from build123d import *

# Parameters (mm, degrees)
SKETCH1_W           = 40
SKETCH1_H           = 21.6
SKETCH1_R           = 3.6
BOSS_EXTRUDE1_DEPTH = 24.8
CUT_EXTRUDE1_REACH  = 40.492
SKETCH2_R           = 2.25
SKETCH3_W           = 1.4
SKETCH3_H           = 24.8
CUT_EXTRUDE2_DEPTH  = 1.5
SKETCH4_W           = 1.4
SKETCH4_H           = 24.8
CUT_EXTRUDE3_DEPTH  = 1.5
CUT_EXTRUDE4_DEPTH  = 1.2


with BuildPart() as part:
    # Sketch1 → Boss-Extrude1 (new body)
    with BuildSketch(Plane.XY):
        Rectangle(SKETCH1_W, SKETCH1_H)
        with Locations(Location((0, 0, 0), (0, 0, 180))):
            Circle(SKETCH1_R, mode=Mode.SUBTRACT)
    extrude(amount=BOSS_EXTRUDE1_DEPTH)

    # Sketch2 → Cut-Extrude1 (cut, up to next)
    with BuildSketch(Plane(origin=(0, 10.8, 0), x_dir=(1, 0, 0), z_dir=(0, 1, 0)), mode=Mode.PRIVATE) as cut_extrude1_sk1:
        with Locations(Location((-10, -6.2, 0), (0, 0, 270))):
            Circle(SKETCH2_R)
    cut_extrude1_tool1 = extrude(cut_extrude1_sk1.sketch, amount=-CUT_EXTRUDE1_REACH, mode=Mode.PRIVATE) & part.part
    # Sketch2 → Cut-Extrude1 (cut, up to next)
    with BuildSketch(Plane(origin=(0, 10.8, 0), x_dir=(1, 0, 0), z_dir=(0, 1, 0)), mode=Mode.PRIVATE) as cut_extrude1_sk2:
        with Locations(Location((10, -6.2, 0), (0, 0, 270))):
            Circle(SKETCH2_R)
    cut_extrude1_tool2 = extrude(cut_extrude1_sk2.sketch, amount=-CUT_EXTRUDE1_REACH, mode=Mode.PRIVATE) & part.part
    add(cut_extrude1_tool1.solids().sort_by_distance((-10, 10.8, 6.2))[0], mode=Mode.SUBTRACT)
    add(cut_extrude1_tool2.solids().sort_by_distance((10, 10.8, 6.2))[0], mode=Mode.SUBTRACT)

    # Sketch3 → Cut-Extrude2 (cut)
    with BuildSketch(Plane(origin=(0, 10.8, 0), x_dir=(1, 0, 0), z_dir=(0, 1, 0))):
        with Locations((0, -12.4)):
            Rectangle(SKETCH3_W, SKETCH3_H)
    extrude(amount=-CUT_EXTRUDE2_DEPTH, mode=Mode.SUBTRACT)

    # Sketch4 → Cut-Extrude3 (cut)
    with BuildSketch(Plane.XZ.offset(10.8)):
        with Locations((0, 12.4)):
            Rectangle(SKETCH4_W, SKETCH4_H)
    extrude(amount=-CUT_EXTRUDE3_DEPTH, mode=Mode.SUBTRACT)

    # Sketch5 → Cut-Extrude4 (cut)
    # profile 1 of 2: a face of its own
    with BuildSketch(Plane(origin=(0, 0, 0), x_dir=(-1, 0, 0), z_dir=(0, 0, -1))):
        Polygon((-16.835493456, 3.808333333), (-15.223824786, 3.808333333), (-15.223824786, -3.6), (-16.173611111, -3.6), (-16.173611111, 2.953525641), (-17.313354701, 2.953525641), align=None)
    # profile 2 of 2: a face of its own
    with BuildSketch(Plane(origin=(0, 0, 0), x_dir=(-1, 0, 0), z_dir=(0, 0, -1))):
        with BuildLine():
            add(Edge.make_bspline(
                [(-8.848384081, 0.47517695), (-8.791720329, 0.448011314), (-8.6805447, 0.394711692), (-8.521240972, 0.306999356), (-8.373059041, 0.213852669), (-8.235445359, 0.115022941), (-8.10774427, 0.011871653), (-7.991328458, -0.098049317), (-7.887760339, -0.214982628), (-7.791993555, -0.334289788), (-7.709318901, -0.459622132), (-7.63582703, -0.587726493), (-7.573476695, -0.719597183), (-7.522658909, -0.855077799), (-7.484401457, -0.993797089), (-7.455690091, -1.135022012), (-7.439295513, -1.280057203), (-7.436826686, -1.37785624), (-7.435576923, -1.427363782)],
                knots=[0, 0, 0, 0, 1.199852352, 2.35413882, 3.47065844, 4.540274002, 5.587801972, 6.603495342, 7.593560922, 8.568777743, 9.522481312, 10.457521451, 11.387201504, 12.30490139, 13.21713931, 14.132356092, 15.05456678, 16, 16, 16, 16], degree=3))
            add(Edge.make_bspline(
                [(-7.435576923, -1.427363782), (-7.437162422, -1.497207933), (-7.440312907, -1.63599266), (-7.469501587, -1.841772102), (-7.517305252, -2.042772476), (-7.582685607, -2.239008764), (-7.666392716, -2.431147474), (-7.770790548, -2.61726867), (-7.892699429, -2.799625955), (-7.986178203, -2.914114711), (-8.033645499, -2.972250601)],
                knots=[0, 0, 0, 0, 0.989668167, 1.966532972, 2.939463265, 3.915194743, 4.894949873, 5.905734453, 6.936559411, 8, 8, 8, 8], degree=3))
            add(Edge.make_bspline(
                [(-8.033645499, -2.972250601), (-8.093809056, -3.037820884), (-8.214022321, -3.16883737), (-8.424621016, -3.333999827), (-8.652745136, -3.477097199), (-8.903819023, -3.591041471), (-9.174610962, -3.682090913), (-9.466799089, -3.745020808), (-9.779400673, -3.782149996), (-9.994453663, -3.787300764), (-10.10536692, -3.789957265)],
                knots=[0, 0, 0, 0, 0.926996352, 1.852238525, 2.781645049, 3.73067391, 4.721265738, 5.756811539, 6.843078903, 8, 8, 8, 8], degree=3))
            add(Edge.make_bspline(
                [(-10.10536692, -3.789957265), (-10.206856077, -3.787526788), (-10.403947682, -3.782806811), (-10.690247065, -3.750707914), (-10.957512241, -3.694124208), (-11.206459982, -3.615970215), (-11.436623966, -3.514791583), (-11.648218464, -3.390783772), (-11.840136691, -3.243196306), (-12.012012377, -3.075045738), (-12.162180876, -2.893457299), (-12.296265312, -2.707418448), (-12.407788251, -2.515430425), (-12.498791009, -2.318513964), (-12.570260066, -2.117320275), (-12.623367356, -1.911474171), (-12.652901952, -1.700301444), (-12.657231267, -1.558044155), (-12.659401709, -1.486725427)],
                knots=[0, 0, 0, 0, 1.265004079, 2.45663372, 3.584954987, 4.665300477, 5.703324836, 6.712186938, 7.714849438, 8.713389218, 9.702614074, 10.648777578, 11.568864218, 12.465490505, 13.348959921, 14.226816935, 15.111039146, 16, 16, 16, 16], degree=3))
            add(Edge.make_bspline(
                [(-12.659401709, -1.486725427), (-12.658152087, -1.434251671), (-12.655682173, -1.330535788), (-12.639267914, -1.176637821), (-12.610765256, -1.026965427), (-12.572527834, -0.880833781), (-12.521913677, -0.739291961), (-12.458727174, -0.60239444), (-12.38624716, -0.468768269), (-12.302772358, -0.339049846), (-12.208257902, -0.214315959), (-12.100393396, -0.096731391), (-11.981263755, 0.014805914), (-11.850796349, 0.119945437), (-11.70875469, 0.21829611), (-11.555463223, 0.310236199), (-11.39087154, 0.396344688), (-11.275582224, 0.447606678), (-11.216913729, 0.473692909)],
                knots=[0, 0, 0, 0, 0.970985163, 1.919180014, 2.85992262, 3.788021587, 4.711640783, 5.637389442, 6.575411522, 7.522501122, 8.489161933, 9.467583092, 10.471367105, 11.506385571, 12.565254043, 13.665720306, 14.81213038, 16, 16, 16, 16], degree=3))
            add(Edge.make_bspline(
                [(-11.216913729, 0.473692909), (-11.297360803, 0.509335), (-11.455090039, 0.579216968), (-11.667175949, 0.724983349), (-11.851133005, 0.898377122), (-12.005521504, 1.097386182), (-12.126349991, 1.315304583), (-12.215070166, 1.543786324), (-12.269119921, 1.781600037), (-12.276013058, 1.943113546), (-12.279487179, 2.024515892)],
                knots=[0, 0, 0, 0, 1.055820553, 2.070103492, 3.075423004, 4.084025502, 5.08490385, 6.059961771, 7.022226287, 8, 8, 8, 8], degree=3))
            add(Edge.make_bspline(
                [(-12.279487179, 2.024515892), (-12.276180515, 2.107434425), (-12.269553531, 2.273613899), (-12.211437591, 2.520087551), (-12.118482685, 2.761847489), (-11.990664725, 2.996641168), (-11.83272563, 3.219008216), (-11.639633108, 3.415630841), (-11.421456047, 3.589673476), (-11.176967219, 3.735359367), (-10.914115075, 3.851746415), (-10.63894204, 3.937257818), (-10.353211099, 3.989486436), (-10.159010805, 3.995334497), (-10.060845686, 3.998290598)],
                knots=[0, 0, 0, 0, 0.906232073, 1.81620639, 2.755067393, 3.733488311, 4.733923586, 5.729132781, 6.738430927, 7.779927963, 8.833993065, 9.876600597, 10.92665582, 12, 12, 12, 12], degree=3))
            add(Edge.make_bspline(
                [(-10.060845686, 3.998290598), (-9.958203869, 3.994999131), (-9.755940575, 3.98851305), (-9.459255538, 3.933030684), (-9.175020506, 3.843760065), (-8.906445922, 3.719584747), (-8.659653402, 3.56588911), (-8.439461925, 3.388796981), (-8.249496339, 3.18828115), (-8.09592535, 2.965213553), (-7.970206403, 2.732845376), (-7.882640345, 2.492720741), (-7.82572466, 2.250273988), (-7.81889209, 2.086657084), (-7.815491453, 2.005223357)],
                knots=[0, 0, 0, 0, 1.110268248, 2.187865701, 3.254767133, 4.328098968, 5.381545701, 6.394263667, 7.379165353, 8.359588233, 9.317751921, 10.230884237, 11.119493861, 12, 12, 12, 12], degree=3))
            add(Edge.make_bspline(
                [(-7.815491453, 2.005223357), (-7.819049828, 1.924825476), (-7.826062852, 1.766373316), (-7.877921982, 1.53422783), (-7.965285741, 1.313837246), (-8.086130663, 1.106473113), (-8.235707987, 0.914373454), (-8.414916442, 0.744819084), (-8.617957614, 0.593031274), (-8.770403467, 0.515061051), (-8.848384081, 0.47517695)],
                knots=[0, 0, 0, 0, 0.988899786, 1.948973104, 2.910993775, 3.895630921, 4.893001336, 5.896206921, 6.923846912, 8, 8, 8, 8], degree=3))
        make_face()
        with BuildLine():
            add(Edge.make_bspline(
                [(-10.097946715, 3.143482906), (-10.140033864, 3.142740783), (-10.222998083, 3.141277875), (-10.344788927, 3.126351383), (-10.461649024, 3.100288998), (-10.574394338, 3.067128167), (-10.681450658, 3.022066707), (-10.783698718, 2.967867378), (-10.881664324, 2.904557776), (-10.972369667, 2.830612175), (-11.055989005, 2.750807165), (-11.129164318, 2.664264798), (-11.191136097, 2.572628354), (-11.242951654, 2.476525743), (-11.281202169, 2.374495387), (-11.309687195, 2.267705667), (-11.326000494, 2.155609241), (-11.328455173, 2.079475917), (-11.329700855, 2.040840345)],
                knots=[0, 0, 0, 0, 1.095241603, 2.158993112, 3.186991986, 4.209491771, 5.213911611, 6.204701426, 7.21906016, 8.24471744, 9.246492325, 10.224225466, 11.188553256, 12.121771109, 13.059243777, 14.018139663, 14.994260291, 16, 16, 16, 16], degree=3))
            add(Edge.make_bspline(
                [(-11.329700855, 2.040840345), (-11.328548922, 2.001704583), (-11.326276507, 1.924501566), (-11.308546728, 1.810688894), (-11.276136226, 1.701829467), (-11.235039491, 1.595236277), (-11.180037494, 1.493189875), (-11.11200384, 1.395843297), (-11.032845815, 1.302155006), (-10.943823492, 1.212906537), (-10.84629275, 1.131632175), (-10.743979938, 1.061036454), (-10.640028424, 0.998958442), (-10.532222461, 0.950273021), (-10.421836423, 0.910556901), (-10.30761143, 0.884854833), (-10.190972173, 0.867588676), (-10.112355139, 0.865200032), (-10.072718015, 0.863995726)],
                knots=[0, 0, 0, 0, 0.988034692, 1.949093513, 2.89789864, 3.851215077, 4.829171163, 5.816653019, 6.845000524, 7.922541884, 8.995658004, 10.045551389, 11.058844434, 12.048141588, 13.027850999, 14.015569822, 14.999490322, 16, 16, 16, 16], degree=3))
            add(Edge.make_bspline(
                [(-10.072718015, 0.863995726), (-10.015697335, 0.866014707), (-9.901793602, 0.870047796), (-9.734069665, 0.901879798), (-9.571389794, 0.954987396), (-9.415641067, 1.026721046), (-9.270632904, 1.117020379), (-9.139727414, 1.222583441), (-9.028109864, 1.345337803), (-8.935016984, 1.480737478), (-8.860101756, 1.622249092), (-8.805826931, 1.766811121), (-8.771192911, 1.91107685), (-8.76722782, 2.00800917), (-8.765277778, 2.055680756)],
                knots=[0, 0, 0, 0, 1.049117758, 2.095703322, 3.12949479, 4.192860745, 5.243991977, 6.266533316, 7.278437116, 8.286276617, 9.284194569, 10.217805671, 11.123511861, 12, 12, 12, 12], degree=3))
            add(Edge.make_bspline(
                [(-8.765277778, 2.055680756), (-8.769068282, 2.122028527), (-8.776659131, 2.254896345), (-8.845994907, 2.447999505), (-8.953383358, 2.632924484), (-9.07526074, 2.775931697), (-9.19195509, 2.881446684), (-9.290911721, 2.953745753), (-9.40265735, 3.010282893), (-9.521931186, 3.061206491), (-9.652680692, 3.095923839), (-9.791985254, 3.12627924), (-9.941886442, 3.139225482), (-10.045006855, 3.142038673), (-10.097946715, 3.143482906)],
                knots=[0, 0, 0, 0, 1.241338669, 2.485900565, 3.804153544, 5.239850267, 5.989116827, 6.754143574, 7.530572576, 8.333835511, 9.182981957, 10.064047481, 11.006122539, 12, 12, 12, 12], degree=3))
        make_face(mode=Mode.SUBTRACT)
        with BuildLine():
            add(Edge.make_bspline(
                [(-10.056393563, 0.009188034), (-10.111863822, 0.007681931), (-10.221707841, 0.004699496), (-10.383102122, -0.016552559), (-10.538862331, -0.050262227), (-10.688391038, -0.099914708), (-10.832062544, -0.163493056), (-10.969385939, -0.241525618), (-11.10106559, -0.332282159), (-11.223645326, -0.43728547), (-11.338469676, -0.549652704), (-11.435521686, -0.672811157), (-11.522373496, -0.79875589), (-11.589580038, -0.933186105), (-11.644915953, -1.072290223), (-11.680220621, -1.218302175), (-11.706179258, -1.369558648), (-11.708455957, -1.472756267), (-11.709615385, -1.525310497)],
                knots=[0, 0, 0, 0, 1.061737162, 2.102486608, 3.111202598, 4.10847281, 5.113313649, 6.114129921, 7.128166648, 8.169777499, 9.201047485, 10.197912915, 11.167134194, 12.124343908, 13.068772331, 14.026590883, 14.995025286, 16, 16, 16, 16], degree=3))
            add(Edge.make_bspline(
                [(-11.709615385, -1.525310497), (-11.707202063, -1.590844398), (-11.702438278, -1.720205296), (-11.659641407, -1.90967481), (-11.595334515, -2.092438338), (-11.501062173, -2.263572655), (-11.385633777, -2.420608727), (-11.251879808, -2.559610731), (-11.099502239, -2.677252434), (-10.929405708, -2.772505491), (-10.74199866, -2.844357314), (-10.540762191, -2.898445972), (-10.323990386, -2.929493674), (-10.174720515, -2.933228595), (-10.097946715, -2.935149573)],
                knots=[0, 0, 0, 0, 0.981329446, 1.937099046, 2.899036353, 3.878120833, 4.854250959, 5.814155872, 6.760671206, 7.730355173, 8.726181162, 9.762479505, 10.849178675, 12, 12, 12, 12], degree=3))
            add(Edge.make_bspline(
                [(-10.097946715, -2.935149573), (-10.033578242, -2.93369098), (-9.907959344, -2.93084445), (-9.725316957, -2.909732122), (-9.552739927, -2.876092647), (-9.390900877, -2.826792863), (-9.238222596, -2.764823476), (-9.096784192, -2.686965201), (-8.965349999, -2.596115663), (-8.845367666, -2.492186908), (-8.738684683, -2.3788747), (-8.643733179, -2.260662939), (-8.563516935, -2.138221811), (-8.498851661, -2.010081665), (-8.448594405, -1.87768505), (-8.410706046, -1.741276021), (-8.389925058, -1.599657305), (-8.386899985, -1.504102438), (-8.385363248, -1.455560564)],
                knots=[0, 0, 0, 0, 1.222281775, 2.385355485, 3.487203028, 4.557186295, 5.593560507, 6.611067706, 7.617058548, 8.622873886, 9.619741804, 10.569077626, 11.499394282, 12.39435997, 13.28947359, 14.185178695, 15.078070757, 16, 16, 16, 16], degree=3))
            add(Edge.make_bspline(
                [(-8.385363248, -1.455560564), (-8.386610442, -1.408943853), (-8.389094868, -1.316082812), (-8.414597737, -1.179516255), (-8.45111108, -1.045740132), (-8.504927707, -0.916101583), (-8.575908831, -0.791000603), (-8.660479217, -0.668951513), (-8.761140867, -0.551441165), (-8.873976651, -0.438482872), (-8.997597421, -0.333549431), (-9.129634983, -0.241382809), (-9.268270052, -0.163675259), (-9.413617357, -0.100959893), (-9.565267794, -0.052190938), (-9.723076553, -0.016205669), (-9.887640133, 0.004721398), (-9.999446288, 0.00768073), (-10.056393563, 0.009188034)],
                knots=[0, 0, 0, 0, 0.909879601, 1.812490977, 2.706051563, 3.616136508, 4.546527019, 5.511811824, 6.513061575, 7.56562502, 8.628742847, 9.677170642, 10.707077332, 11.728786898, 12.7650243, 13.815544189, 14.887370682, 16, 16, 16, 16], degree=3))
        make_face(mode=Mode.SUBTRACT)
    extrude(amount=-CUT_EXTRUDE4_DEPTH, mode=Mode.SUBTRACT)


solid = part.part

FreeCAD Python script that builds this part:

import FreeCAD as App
import Part
import Sketcher

V = App.Vector
Q = App.Units.Quantity

doc = App.newDocument("Part")
body = doc.addObject("PartDesign::Body", "Body")

# Sketch on XY plane
sketch1 = doc.addObject("Sketcher::SketchObject", "Sketch")
body.addObject(sketch1)
sketch1.AttachmentSupport = (doc.XY_Plane, [""])
sketch1.MapMode = "FlatFace"
sketch1.addGeometry(Part.LineSegment(V(-20, 10.8, 0), V(-20, -10.8, 0)), False)
sketch1.addGeometry(Part.LineSegment(V(-20, -10.8, 0), V(20, -10.8, 0)), False)
sketch1.addGeometry(Part.LineSegment(V(20, -10.8, 0), V(20, 10.8, 0)), False)
sketch1.addGeometry(Part.LineSegment(V(20, 10.8, 0), V(-20, 10.8, 0)), False)
sketch1.addGeometry(Part.Circle(V(0, 0, 0), V(0, 0, 1), 3.6), False)
sketch1.addConstraint(Sketcher.Constraint("Coincident", 0, 2, 1, 1))
sketch1.addConstraint(Sketcher.Constraint("Coincident", 1, 2, 2, 1))
sketch1.addConstraint(Sketcher.Constraint("Coincident", 2, 2, 3, 1))
sketch1.addConstraint(Sketcher.Constraint("Coincident", 3, 2, 0, 1))
sketch1.addConstraint(Sketcher.Constraint("Vertical", 0))
sketch1.addConstraint(Sketcher.Constraint("Horizontal", 1))
sketch1.addConstraint(Sketcher.Constraint("Vertical", 2))
sketch1.addConstraint(Sketcher.Constraint("Horizontal", 3))
sketch1.addConstraint(Sketcher.Constraint("Coincident", 4, 3, -1, 1))
sketch1.addConstraint(Sketcher.Constraint("Symmetric", 0, 2, 2, 2, -1, 1))
sketch1.addConstraint(Sketcher.Constraint("Diameter", 4, Q("7.2 mm")))
sketch1.addConstraint(Sketcher.Constraint("DistanceX", 1, 1, 1, 2, Q("40 mm")))
sketch1.addConstraint(Sketcher.Constraint("DistanceY", 0, 2, 0, 1, Q("21.6 mm")))
pad1 = doc.addObject("PartDesign::Pad", "Pad")
body.addObject(pad1)
pad1.Profile = sketch1
pad1.Length = 24.8

# Sketch on XZ plane
sketch2 = doc.addObject("Sketcher::SketchObject", "Sketch001")
body.addObject(sketch2)
sketch2.AttachmentSupport = (doc.XZ_Plane, [""])
sketch2.MapMode = "FlatFace"
sketch2.AttachmentOffset = App.Placement(V(0, 0, -10.8), App.Rotation())
sketch2.addGeometry(Part.Circle(V(-10, 6.2, 0), V(0, 0, 1), 2.2), False)
sketch2.addConstraint(Sketcher.Constraint("Diameter", 0, Q("4.5 mm")))
sketch2.addConstraint(Sketcher.Constraint("DistanceX", 0, 3, -1, 1, Q("10 mm")))
sketch2.addConstraint(Sketcher.Constraint("DistanceY", -1, 1, 0, 3, Q("6.2 mm")))
pocket1 = doc.addObject("PartDesign::Pocket", "Pocket")
body.addObject(pocket1)
pocket1.Profile = sketch2
pocket1.Type = "UpToFirst"
pocket1.Reversed = True

# Sketch on XZ plane
sketch3 = doc.addObject("Sketcher::SketchObject", "Sketch002")
body.addObject(sketch3)
sketch3.AttachmentSupport = (doc.XZ_Plane, [""])
sketch3.MapMode = "FlatFace"
sketch3.AttachmentOffset = App.Placement(V(0, 0, -10.8), App.Rotation())
sketch3.addGeometry(Part.Circle(V(10, 6.2, 0), V(0, 0, 1), 2.2), False)
sketch3.addConstraint(Sketcher.Constraint("Diameter", 0, Q("4.5 mm")))
sketch3.addConstraint(Sketcher.Constraint("DistanceX", -1, 1, 0, 3, Q("10 mm")))
sketch3.addConstraint(Sketcher.Constraint("DistanceY", -1, 1, 0, 3, Q("6.2 mm")))
pocket2 = doc.addObject("PartDesign::Pocket", "Pocket001")
body.addObject(pocket2)
pocket2.Profile = sketch3
pocket2.Type = "UpToFirst"
pocket2.Reversed = True

# Sketch on XZ plane
sketch4 = doc.addObject("Sketcher::SketchObject", "Sketch003")
body.addObject(sketch4)
sketch4.AttachmentSupport = (doc.XZ_Plane, [""])
sketch4.MapMode = "FlatFace"
sketch4.AttachmentOffset = App.Placement(V(0, 0, -10.8), App.Rotation())
sketch4.addGeometry(Part.LineSegment(V(-0.7, 0, 0), V(-0.7, 24.8, 0)), False)
sketch4.addGeometry(Part.LineSegment(V(-0.7, 24.8, 0), V(0.7, 24.8, 0)), False)
sketch4.addGeometry(Part.LineSegment(V(0.7, 24.8, 0), V(0.7, 0, 0)), False)
sketch4.addGeometry(Part.LineSegment(V(0.7, 0, 0), V(-0.7, 0, 0)), False)
sketch4.addConstraint(Sketcher.Constraint("Coincident", 0, 2, 1, 1))
sketch4.addConstraint(Sketcher.Constraint("Coincident", 1, 2, 2, 1))
sketch4.addConstraint(Sketcher.Constraint("Coincident", 2, 2, 3, 1))
sketch4.addConstraint(Sketcher.Constraint("Coincident", 3, 2, 0, 1))
sketch4.addConstraint(Sketcher.Constraint("Vertical", 0))
sketch4.addConstraint(Sketcher.Constraint("Horizontal", 1))
sketch4.addConstraint(Sketcher.Constraint("Vertical", 2))
sketch4.addConstraint(Sketcher.Constraint("Horizontal", 3))
sketch4.addConstraint(Sketcher.Constraint("Symmetric", 2, 2, 3, 2, -1, 1))
sketch4.addConstraint(Sketcher.Constraint("DistanceX", 1, 1, 1, 2, Q("1.4 mm")))
sketch4.addConstraint(Sketcher.Constraint("DistanceY", 0, 1, 0, 2, Q("24.8 mm")))
pocket3 = doc.addObject("PartDesign::Pocket", "Pocket002")
body.addObject(pocket3)
pocket3.Profile = sketch4
pocket3.Length = 1.5
pocket3.Reversed = True

# Sketch on XZ plane
sketch5 = doc.addObject("Sketcher::SketchObject", "Sketch004")
body.addObject(sketch5)
sketch5.AttachmentSupport = (doc.XZ_Plane, [""])
sketch5.MapMode = "FlatFace"
sketch5.AttachmentOffset = App.Placement(V(0, 0, 10.8), App.Rotation())
sketch5.addGeometry(Part.LineSegment(V(-0.7, 24.8, 0), V(-0.7, 0, 0)), False)
sketch5.addGeometry(Part.LineSegment(V(-0.7, 0, 0), V(0.7, 0, 0)), False)
sketch5.addGeometry(Part.LineSegment(V(0.7, 0, 0), V(0.7, 24.8, 0)), False)
sketch5.addGeometry(Part.LineSegment(V(0.7, 24.8, 0), V(-0.7, 24.8, 0)), False)
sketch5.addConstraint(Sketcher.Constraint("Coincident", 0, 2, 1, 1))
sketch5.addConstraint(Sketcher.Constraint("Coincident", 1, 2, 2, 1))
sketch5.addConstraint(Sketcher.Constraint("Coincident", 2, 2, 3, 1))
sketch5.addConstraint(Sketcher.Constraint("Coincident", 3, 2, 0, 1))
sketch5.addConstraint(Sketcher.Constraint("Vertical", 0))
sketch5.addConstraint(Sketcher.Constraint("Horizontal", 1))
sketch5.addConstraint(Sketcher.Constraint("Vertical", 2))
sketch5.addConstraint(Sketcher.Constraint("Horizontal", 3))
sketch5.addConstraint(Sketcher.Constraint("Symmetric", 0, 2, 1, 2, -1, 1))
sketch5.addConstraint(Sketcher.Constraint("DistanceX", 1, 1, 1, 2, Q("1.4 mm")))
sketch5.addConstraint(Sketcher.Constraint("DistanceY", 0, 2, 0, 1, Q("24.8 mm")))
pocket4 = doc.addObject("PartDesign::Pocket", "Pocket003")
body.addObject(pocket4)
pocket4.Profile = sketch5
pocket4.Length = 1.5

# Sketch on XY plane
sketch6 = doc.addObject("Sketcher::SketchObject", "Sketch005")
body.addObject(sketch6)
sketch6.AttachmentSupport = (doc.XY_Plane, [""])
sketch6.MapMode = "FlatFace"
sketch6.addGeometry(Part.LineSegment(V(15.223825, 3.808333, 0), V(16.835493, 3.808333, 0)), False)
sketch6.addGeometry(Part.LineSegment(V(16.835493, 3.808333, 0), V(17.313355, 2.953526, 0)), False)
sketch6.addGeometry(Part.LineSegment(V(17.313355, 2.953526, 0), V(16.173611, 2.953526, 0)), False)
sketch6.addGeometry(Part.LineSegment(V(16.173611, 2.953526, 0), V(16.173611, -3.6, 0)), False)
sketch6.addGeometry(Part.LineSegment(V(16.173611, -3.6, 0), V(15.223825, -3.6, 0)), False)
sketch6.addGeometry(Part.LineSegment(V(15.223825, -3.6, 0), V(15.223825, 3.808333, 0)), False)
sketch6.addGeometry(Part.BSplineCurve([V(8.848384, 0.475177, 0), V(8.79172, 0.448011, 0), V(8.680545, 0.394712, 0), V(8.521241, 0.306999, 0), V(8.373059, 0.213853, 0), V(8.235445, 0.115023, 0), V(8.107744, 0.011872, 0), V(7.991328, -0.098049, 0), V(7.88776, -0.214983, 0), V(7.791994, -0.33429, 0), V(7.709319, -0.459622, 0), V(7.635827, -0.587726, 0), V(7.573477, -0.719597, 0), V(7.522659, -0.855078, 0), V(7.484401, -0.993797, 0), V(7.45569, -1.135022, 0), V(7.439296, -1.280057, 0), V(7.436827, -1.377856, 0), V(7.435577, -1.427364, 0)], [4, 1, 1, 1, 1, 1, 1, 1, 1, 1, 1, 1, 1, 1, 1, 1, 4], [0, 1.199852352, 2.35413882, 3.47065844, 4.540274002, 5.587801972, 6.603495342, 7.593560922, 8.568777743, 9.522481312, 10.457521451, 11.387201504, 12.30490139, 13.21713931, 14.132356092, 15.05456678, 16], False, 3, [1, 1, 1, 1, 1, 1, 1, 1, 1, 1, 1, 1, 1, 1, 1, 1, 1, 1, 1], False), False)
sketch6.addGeometry(Part.BSplineCurve([V(7.815491, 2.005223, 0), V(7.81905, 1.924825, 0), V(7.826063, 1.766373, 0), V(7.877922, 1.534228, 0), V(7.965286, 1.313837, 0), V(8.086131, 1.106473, 0), V(8.235708, 0.914373, 0), V(8.414916, 0.744819, 0), V(8.617958, 0.593031, 0), V(8.770403, 0.515061, 0), V(8.848384, 0.475177, 0)], [4, 1, 1, 1, 1, 1, 1, 1, 4], [0, 0.988899786, 1.948973104, 2.910993775, 3.895630921, 4.893001336, 5.896206921, 6.923846912, 8], False, 3, [1, 1, 1, 1, 1, 1, 1, 1, 1, 1, 1], False), False)
sketch6.addGeometry(Part.BSplineCurve([V(10.060846, 3.998291, 0), V(9.958204, 3.994999, 0), V(9.755941, 3.988513, 0), V(9.459256, 3.933031, 0), V(9.175021, 3.84376, 0), V(8.906446, 3.719585, 0), V(8.659653, 3.565889, 0), V(8.439462, 3.388797, 0), V(8.249496, 3.188281, 0), V(8.095925, 2.965214, 0), V(7.970206, 2.732845, 0), V(7.88264, 2.492721, 0), V(7.825725, 2.250274, 0), V(7.818892, 2.086657, 0), V(7.815491, 2.005223, 0)], [4, 1, 1, 1, 1, 1, 1, 1, 1, 1, 1, 1, 4], [0, 1.110268248, 2.187865701, 3.254767133, 4.328098968, 5.381545701, 6.394263667, 7.379165353, 8.359588233, 9.317751921, 10.230884237, 11.119493861, 12], False, 3, [1, 1, 1, 1, 1, 1, 1, 1, 1, 1, 1, 1, 1, 1, 1], False), False)
sketch6.addGeometry(Part.BSplineCurve([V(12.279487, 2.024516, 0), V(12.276181, 2.107434, 0), V(12.269554, 2.273614, 0), V(12.211438, 2.520088, 0), V(12.118483, 2.761847, 0), V(11.990665, 2.996641, 0), V(11.832726, 3.219008, 0), V(11.639633, 3.415631, 0), V(11.421456, 3.589673, 0), V(11.176967, 3.735359, 0), V(10.914115, 3.851746, 0), V(10.638942, 3.937258, 0), V(10.353211, 3.989486, 0), V(10.159011, 3.995334, 0), V(10.060846, 3.998291, 0)], [4, 1, 1, 1, 1, 1, 1, 1, 1, 1, 1, 1, 4], [0, 0.906232073, 1.81620639, 2.755067393, 3.733488311, 4.733923586, 5.729132781, 6.738430927, 7.779927963, 8.833993065, 9.876600597, 10.92665582, 12], False, 3, [1, 1, 1, 1, 1, 1, 1, 1, 1, 1, 1, 1, 1, 1, 1], False), False)
sketch6.addGeometry(Part.BSplineCurve([V(11.216914, 0.473693, 0), V(11.297361, 0.509335, 0), V(11.45509, 0.579217, 0), V(11.667176, 0.724983, 0), V(11.851133, 0.898377, 0), V(12.005522, 1.097386, 0), V(12.12635, 1.315305, 0), V(12.21507, 1.543786, 0), V(12.26912, 1.7816, 0), V(12.276013, 1.943114, 0), V(12.279487, 2.024516, 0)], [4, 1, 1, 1, 1, 1, 1, 1, 4], [0, 1.055820553, 2.070103492, 3.075423004, 4.084025502, 5.08490385, 6.059961771, 7.022226287, 8], False, 3, [1, 1, 1, 1, 1, 1, 1, 1, 1, 1, 1], False), False)
sketch6.addGeometry(Part.BSplineCurve([V(12.659402, -1.486725, 0), V(12.658152, -1.434252, 0), V(12.655682, -1.330536, 0), V(12.639268, -1.176638, 0), V(12.610765, -1.026965, 0), V(12.572528, -0.880834, 0), V(12.521914, -0.739292, 0), V(12.458727, -0.602394, 0), V(12.386247, -0.468768, 0), V(12.302772, -0.33905, 0), V(12.208258, -0.214316, 0), V(12.100393, -0.096731, 0), V(11.981264, 0.014806, 0), V(11.850796, 0.119945, 0), V(11.708755, 0.218296, 0), V(11.555463, 0.310236, 0), V(11.390872, 0.396345, 0), V(11.275582, 0.447607, 0), V(11.216914, 0.473693, 0)], [4, 1, 1, 1, 1, 1, 1, 1, 1, 1, 1, 1, 1, 1, 1, 1, 4], [0, 0.970985163, 1.919180014, 2.85992262, 3.788021587, 4.711640783, 5.637389442, 6.575411522, 7.522501122, 8.489161933, 9.467583092, 10.471367105, 11.506385571, 12.565254043, 13.665720306, 14.81213038, 16], False, 3, [1, 1, 1, 1, 1, 1, 1, 1, 1, 1, 1, 1, 1, 1, 1, 1, 1, 1, 1], False), False)
sketch6.addGeometry(Part.BSplineCurve([V(10.105367, -3.789957, 0), V(10.206856, -3.787527, 0), V(10.403948, -3.782807, 0), V(10.690247, -3.750708, 0), V(10.957512, -3.694124, 0), V(11.20646, -3.61597, 0), V(11.436624, -3.514792, 0), V(11.648218, -3.390784, 0), V(11.840137, -3.243196, 0), V(12.012012, -3.075046, 0), V(12.162181, -2.893457, 0), V(12.296265, -2.707418, 0), V(12.407788, -2.51543, 0), V(12.498791, -2.318514, 0), V(12.57026, -2.11732, 0), V(12.623367, -1.911474, 0), V(12.652902, -1.700301, 0), V(12.657231, -1.558044, 0), V(12.659402, -1.486725, 0)], [4, 1, 1, 1, 1, 1, 1, 1, 1, 1, 1, 1, 1, 1, 1, 1, 4], [0, 1.265004079, 2.45663372, 3.584954987, 4.665300477, 5.703324836, 6.712186938, 7.714849438, 8.713389218, 9.702614074, 10.648777578, 11.568864218, 12.465490505, 13.348959921, 14.226816935, 15.111039146, 16], False, 3, [1, 1, 1, 1, 1, 1, 1, 1, 1, 1, 1, 1, 1, 1, 1, 1, 1, 1, 1], False), False)
sketch6.addGeometry(Part.BSplineCurve([V(8.033645, -2.972251, 0), V(8.093809, -3.037821, 0), V(8.214022, -3.168837, 0), V(8.424621, -3.334, 0), V(8.652745, -3.477097, 0), V(8.903819, -3.591041, 0), V(9.174611, -3.682091, 0), V(9.466799, -3.745021, 0), V(9.779401, -3.78215, 0), V(9.994454, -3.787301, 0), V(10.105367, -3.789957, 0)], [4, 1, 1, 1, 1, 1, 1, 1, 4], [0, 0.926996352, 1.852238525, 2.781645049, 3.73067391, 4.721265738, 5.756811539, 6.843078903, 8], False, 3, [1, 1, 1, 1, 1, 1, 1, 1, 1, 1, 1], False), False)
sketch6.addGeometry(Part.BSplineCurve([V(7.435577, -1.427364, 0), V(7.437162, -1.497208, 0), V(7.440313, -1.635993, 0), V(7.469502, -1.841772, 0), V(7.517305, -2.042772, 0), V(7.582686, -2.239009, 0), V(7.666393, -2.431147, 0), V(7.770791, -2.617269, 0), V(7.892699, -2.799626, 0), V(7.986178, -2.914115, 0), V(8.033645, -2.972251, 0)], [4, 1, 1, 1, 1, 1, 1, 1, 4], [0, 0.989668167, 1.966532972, 2.939463265, 3.915194743, 4.894949873, 5.905734453, 6.936559411, 8], False, 3, [1, 1, 1, 1, 1, 1, 1, 1, 1, 1, 1], False), False)
sketch6.addGeometry(Part.BSplineCurve([V(8.385363, -1.455561, 0), V(8.38661, -1.408944, 0), V(8.389095, -1.316083, 0), V(8.414598, -1.179516, 0), V(8.451111, -1.04574, 0), V(8.504928, -0.916102, 0), V(8.575909, -0.791001, 0), V(8.660479, -0.668952, 0), V(8.761141, -0.551441, 0), V(8.873977, -0.438483, 0), V(8.997597, -0.333549, 0), V(9.129635, -0.241383, 0), V(9.26827, -0.163675, 0), V(9.413617, -0.10096, 0), V(9.565268, -0.052191, 0), V(9.723077, -0.016206, 0), V(9.88764, 0.004721, 0), V(9.999446, 0.007681, 0), V(10.056394, 0.009188, 0)], [4, 1, 1, 1, 1, 1, 1, 1, 1, 1, 1, 1, 1, 1, 1, 1, 4], [0, 0.909879601, 1.812490977, 2.706051563, 3.616136508, 4.546527019, 5.511811824, 6.513061575, 7.56562502, 8.628742847, 9.677170642, 10.707077332, 11.728786898, 12.7650243, 13.815544189, 14.887370682, 16], False, 3, [1, 1, 1, 1, 1, 1, 1, 1, 1, 1, 1, 1, 1, 1, 1, 1, 1, 1, 1], False), False)
sketch6.addGeometry(Part.BSplineCurve([V(10.097947, -2.93515, 0), V(10.033578, -2.933691, 0), V(9.907959, -2.930844, 0), V(9.725317, -2.909732, 0), V(9.55274, -2.876093, 0), V(9.390901, -2.826793, 0), V(9.238223, -2.764823, 0), V(9.096784, -2.686965, 0), V(8.96535, -2.596116, 0), V(8.845368, -2.492187, 0), V(8.738685, -2.378875, 0), V(8.643733, -2.260663, 0), V(8.563517, -2.138222, 0), V(8.498852, -2.010082, 0), V(8.448594, -1.877685, 0), V(8.410706, -1.741276, 0), V(8.389925, -1.599657, 0), V(8.3869, -1.504102, 0), V(8.385363, -1.455561, 0)], [4, 1, 1, 1, 1, 1, 1, 1, 1, 1, 1, 1, 1, 1, 1, 1, 4], [0, 1.222281775, 2.385355485, 3.487203028, 4.557186295, 5.593560507, 6.611067706, 7.617058548, 8.622873886, 9.619741804, 10.569077626, 11.499394282, 12.39435997, 13.28947359, 14.185178695, 15.078070757, 16], False, 3, [1, 1, 1, 1, 1, 1, 1, 1, 1, 1, 1, 1, 1, 1, 1, 1, 1, 1, 1], False), False)
sketch6.addGeometry(Part.BSplineCurve([V(11.709615, -1.52531, 0), V(11.707202, -1.590844, 0), V(11.702438, -1.720205, 0), V(11.659641, -1.909675, 0), V(11.595335, -2.092438, 0), V(11.501062, -2.263573, 0), V(11.385634, -2.420609, 0), V(11.25188, -2.559611, 0), V(11.099502, -2.677252, 0), V(10.929406, -2.772505, 0), V(10.741999, -2.844357, 0), V(10.540762, -2.898446, 0), V(10.32399, -2.929494, 0), V(10.174721, -2.933229, 0), V(10.097947, -2.93515, 0)], [4, 1, 1, 1, 1, 1, 1, 1, 1, 1, 1, 1, 4], [0, 0.981329446, 1.937099046, 2.899036353, 3.878120833, 4.854250959, 5.814155872, 6.760671206, 7.730355173, 8.726181162, 9.762479505, 10.849178675, 12], False, 3, [1, 1, 1, 1, 1, 1, 1, 1, 1, 1, 1, 1, 1, 1, 1], False), False)
sketch6.addGeometry(Part.BSplineCurve([V(10.056394, 0.009188, 0), V(10.111864, 0.007682, 0), V(10.221708, 0.004699, 0), V(10.383102, -0.016553, 0), V(10.538862, -0.050262, 0), V(10.688391, -0.099915, 0), V(10.832063, -0.163493, 0), V(10.969386, -0.241526, 0), V(11.101066, -0.332282, 0), V(11.223645, -0.437285, 0), V(11.33847, -0.549653, 0), V(11.435522, -0.672811, 0), V(11.522373, -0.798756, 0), V(11.58958, -0.933186, 0), V(11.644916, -1.07229, 0), V(11.680221, -1.218302, 0), V(11.706179, -1.369559, 0), V(11.708456, -1.472756, 0), V(11.709615, -1.52531, 0)], [4, 1, 1, 1, 1, 1, 1, 1, 1, 1, 1, 1, 1, 1, 1, 1, 4], [0, 1.061737162, 2.102486608, 3.111202598, 4.10847281, 5.113313649, 6.114129921, 7.128166648, 8.169777499, 9.201047485, 10.197912915, 11.167134194, 12.124343908, 13.068772331, 14.026590883, 14.995025286, 16], False, 3, [1, 1, 1, 1, 1, 1, 1, 1, 1, 1, 1, 1, 1, 1, 1, 1, 1, 1, 1], False), False)
sketch6.addGeometry(Part.BSplineCurve([V(8.765278, 2.055681, 0), V(8.769068, 2.122029, 0), V(8.776659, 2.254896, 0), V(8.845995, 2.448, 0), V(8.953383, 2.632924, 0), V(9.075261, 2.775932, 0), V(9.191955, 2.881447, 0), V(9.290912, 2.953746, 0), V(9.402657, 3.010283, 0), V(9.521931, 3.061206, 0), V(9.652681, 3.095924, 0), V(9.791985, 3.126279, 0), V(9.941886, 3.139225, 0), V(10.045007, 3.142039, 0), V(10.097947, 3.143483, 0)], [4, 1, 1, 1, 1, 1, 1, 1, 1, 1, 1, 1, 4], [0, 1.241338669, 2.485900565, 3.804153544, 5.239850267, 5.989116827, 6.754143574, 7.530572576, 8.333835511, 9.182981957, 10.064047481, 11.006122539, 12], False, 3, [1, 1, 1, 1, 1, 1, 1, 1, 1, 1, 1, 1, 1, 1, 1], False), False)
sketch6.addGeometry(Part.BSplineCurve([V(10.072718, 0.863996, 0), V(10.015697, 0.866015, 0), V(9.901794, 0.870048, 0), V(9.73407, 0.90188, 0), V(9.57139, 0.954987, 0), V(9.415641, 1.026721, 0), V(9.270633, 1.11702, 0), V(9.139727, 1.222583, 0), V(9.02811, 1.345338, 0), V(8.935017, 1.480737, 0), V(8.860102, 1.622249, 0), V(8.805827, 1.766811, 0), V(8.771193, 1.911077, 0), V(8.767228, 2.008009, 0), V(8.765278, 2.055681, 0)], [4, 1, 1, 1, 1, 1, 1, 1, 1, 1, 1, 1, 4], [0, 1.049117758, 2.095703322, 3.12949479, 4.192860745, 5.243991977, 6.266533316, 7.278437116, 8.286276617, 9.284194569, 10.217805671, 11.123511861, 12], False, 3, [1, 1, 1, 1, 1, 1, 1, 1, 1, 1, 1, 1, 1, 1, 1], False), False)
sketch6.addGeometry(Part.BSplineCurve([V(11.329701, 2.04084, 0), V(11.328549, 2.001705, 0), V(11.326277, 1.924502, 0), V(11.308547, 1.810689, 0), V(11.276136, 1.701829, 0), V(11.235039, 1.595236, 0), V(11.180037, 1.49319, 0), V(11.112004, 1.395843, 0), V(11.032846, 1.302155, 0), V(10.943823, 1.212907, 0), V(10.846293, 1.131632, 0), V(10.74398, 1.061036, 0), V(10.640028, 0.998958, 0), V(10.532222, 0.950273, 0), V(10.421836, 0.910557, 0), V(10.307611, 0.884855, 0), V(10.190972, 0.867589, 0), V(10.112355, 0.8652, 0), V(10.072718, 0.863996, 0)], [4, 1, 1, 1, 1, 1, 1, 1, 1, 1, 1, 1, 1, 1, 1, 1, 4], [0, 0.988034692, 1.949093513, 2.89789864, 3.851215077, 4.829171163, 5.816653019, 6.845000524, 7.922541884, 8.995658004, 10.045551389, 11.058844434, 12.048141588, 13.027850999, 14.015569822, 14.999490322, 16], False, 3, [1, 1, 1, 1, 1, 1, 1, 1, 1, 1, 1, 1, 1, 1, 1, 1, 1, 1, 1], False), False)
sketch6.addGeometry(Part.BSplineCurve([V(10.097947, 3.143483, 0), V(10.140034, 3.142741, 0), V(10.222998, 3.141278, 0), V(10.344789, 3.126351, 0), V(10.461649, 3.100289, 0), V(10.574394, 3.067128, 0), V(10.681451, 3.022067, 0), V(10.783699, 2.967867, 0), V(10.881664, 2.904558, 0), V(10.97237, 2.830612, 0), V(11.055989, 2.750807, 0), V(11.129164, 2.664265, 0), V(11.191136, 2.572628, 0), V(11.242952, 2.476526, 0), V(11.281202, 2.374495, 0), V(11.309687, 2.267706, 0), V(11.326, 2.155609, 0), V(11.328455, 2.079476, 0), V(11.329701, 2.04084, 0)], [4, 1, 1, 1, 1, 1, 1, 1, 1, 1, 1, 1, 1, 1, 1, 1, 4], [0, 1.095241603, 2.158993112, 3.186991986, 4.209491771, 5.213911611, 6.204701426, 7.21906016, 8.24471744, 9.246492325, 10.224225466, 11.188553256, 12.121771109, 13.059243777, 14.018139663, 14.994260291, 16], False, 3, [1, 1, 1, 1, 1, 1, 1, 1, 1, 1, 1, 1, 1, 1, 1, 1, 1, 1, 1], False), False)
sketch6.addConstraint(Sketcher.Constraint("Block", 6))
sketch6.addConstraint(Sketcher.Constraint("Block", 7))
sketch6.addConstraint(Sketcher.Constraint("Block", 8))
sketch6.addConstraint(Sketcher.Constraint("Block", 9))
sketch6.addConstraint(Sketcher.Constraint("Block", 10))
sketch6.addConstraint(Sketcher.Constraint("Block", 11))
sketch6.addConstraint(Sketcher.Constraint("Block", 12))
sketch6.addConstraint(Sketcher.Constraint("Block", 13))
sketch6.addConstraint(Sketcher.Constraint("Block", 14))
sketch6.addConstraint(Sketcher.Constraint("Block", 15))
sketch6.addConstraint(Sketcher.Constraint("Block", 16))
sketch6.addConstraint(Sketcher.Constraint("Block", 17))
sketch6.addConstraint(Sketcher.Constraint("Block", 18))
sketch6.addConstraint(Sketcher.Constraint("Block", 19))
sketch6.addConstraint(Sketcher.Constraint("Block", 20))
sketch6.addConstraint(Sketcher.Constraint("Block", 21))
sketch6.addConstraint(Sketcher.Constraint("Block", 22))
sketch6.addConstraint(Sketcher.Constraint("Coincident", 0, 2, 1, 1))
sketch6.addConstraint(Sketcher.Constraint("Coincident", 1, 2, 2, 1))
sketch6.addConstraint(Sketcher.Constraint("Coincident", 2, 2, 3, 1))
sketch6.addConstraint(Sketcher.Constraint("Coincident", 3, 2, 4, 1))
sketch6.addConstraint(Sketcher.Constraint("Coincident", 4, 2, 5, 1))
sketch6.addConstraint(Sketcher.Constraint("Coincident", 5, 2, 0, 1))
sketch6.addConstraint(Sketcher.Constraint("Horizontal", 0))
sketch6.addConstraint(Sketcher.Constraint("Horizontal", 2))
sketch6.addConstraint(Sketcher.Constraint("Vertical", 3))
sketch6.addConstraint(Sketcher.Constraint("Horizontal", 4))
sketch6.addConstraint(Sketcher.Constraint("Vertical", 5))
sketch6.addConstraint(Sketcher.Constraint("DistanceY", 3, 2, -1, 1, Q("3.6 mm")))
sketch6.addConstraint(Sketcher.Constraint("DistanceX", 0, 1, 0, 2, Q("1.611669 mm")))
sketch6.addConstraint(Sketcher.Constraint("Distance", 1, Q("0.97931 mm")))
sketch6.addConstraint(Sketcher.Constraint("DistanceX", 2, 2, 2, 1, Q("1.139744 mm")))
sketch6.addConstraint(Sketcher.Constraint("DistanceX", 4, 2, 4, 1, Q("0.949786 mm")))
sketch6.addConstraint(Sketcher.Constraint("DistanceY", 3, 2, 3, 1, Q("6.553526 mm")))
sketch6.addConstraint(Sketcher.Constraint("DistanceX", -1, 1, 2, 2, Q("16.173611 mm")))
pocket5 = doc.addObject("PartDesign::Pocket", "Pocket004")
body.addObject(pocket5)
pocket5.Profile = sketch6
pocket5.Length = 1.2
pocket5.Reversed = True

doc.recompute()
